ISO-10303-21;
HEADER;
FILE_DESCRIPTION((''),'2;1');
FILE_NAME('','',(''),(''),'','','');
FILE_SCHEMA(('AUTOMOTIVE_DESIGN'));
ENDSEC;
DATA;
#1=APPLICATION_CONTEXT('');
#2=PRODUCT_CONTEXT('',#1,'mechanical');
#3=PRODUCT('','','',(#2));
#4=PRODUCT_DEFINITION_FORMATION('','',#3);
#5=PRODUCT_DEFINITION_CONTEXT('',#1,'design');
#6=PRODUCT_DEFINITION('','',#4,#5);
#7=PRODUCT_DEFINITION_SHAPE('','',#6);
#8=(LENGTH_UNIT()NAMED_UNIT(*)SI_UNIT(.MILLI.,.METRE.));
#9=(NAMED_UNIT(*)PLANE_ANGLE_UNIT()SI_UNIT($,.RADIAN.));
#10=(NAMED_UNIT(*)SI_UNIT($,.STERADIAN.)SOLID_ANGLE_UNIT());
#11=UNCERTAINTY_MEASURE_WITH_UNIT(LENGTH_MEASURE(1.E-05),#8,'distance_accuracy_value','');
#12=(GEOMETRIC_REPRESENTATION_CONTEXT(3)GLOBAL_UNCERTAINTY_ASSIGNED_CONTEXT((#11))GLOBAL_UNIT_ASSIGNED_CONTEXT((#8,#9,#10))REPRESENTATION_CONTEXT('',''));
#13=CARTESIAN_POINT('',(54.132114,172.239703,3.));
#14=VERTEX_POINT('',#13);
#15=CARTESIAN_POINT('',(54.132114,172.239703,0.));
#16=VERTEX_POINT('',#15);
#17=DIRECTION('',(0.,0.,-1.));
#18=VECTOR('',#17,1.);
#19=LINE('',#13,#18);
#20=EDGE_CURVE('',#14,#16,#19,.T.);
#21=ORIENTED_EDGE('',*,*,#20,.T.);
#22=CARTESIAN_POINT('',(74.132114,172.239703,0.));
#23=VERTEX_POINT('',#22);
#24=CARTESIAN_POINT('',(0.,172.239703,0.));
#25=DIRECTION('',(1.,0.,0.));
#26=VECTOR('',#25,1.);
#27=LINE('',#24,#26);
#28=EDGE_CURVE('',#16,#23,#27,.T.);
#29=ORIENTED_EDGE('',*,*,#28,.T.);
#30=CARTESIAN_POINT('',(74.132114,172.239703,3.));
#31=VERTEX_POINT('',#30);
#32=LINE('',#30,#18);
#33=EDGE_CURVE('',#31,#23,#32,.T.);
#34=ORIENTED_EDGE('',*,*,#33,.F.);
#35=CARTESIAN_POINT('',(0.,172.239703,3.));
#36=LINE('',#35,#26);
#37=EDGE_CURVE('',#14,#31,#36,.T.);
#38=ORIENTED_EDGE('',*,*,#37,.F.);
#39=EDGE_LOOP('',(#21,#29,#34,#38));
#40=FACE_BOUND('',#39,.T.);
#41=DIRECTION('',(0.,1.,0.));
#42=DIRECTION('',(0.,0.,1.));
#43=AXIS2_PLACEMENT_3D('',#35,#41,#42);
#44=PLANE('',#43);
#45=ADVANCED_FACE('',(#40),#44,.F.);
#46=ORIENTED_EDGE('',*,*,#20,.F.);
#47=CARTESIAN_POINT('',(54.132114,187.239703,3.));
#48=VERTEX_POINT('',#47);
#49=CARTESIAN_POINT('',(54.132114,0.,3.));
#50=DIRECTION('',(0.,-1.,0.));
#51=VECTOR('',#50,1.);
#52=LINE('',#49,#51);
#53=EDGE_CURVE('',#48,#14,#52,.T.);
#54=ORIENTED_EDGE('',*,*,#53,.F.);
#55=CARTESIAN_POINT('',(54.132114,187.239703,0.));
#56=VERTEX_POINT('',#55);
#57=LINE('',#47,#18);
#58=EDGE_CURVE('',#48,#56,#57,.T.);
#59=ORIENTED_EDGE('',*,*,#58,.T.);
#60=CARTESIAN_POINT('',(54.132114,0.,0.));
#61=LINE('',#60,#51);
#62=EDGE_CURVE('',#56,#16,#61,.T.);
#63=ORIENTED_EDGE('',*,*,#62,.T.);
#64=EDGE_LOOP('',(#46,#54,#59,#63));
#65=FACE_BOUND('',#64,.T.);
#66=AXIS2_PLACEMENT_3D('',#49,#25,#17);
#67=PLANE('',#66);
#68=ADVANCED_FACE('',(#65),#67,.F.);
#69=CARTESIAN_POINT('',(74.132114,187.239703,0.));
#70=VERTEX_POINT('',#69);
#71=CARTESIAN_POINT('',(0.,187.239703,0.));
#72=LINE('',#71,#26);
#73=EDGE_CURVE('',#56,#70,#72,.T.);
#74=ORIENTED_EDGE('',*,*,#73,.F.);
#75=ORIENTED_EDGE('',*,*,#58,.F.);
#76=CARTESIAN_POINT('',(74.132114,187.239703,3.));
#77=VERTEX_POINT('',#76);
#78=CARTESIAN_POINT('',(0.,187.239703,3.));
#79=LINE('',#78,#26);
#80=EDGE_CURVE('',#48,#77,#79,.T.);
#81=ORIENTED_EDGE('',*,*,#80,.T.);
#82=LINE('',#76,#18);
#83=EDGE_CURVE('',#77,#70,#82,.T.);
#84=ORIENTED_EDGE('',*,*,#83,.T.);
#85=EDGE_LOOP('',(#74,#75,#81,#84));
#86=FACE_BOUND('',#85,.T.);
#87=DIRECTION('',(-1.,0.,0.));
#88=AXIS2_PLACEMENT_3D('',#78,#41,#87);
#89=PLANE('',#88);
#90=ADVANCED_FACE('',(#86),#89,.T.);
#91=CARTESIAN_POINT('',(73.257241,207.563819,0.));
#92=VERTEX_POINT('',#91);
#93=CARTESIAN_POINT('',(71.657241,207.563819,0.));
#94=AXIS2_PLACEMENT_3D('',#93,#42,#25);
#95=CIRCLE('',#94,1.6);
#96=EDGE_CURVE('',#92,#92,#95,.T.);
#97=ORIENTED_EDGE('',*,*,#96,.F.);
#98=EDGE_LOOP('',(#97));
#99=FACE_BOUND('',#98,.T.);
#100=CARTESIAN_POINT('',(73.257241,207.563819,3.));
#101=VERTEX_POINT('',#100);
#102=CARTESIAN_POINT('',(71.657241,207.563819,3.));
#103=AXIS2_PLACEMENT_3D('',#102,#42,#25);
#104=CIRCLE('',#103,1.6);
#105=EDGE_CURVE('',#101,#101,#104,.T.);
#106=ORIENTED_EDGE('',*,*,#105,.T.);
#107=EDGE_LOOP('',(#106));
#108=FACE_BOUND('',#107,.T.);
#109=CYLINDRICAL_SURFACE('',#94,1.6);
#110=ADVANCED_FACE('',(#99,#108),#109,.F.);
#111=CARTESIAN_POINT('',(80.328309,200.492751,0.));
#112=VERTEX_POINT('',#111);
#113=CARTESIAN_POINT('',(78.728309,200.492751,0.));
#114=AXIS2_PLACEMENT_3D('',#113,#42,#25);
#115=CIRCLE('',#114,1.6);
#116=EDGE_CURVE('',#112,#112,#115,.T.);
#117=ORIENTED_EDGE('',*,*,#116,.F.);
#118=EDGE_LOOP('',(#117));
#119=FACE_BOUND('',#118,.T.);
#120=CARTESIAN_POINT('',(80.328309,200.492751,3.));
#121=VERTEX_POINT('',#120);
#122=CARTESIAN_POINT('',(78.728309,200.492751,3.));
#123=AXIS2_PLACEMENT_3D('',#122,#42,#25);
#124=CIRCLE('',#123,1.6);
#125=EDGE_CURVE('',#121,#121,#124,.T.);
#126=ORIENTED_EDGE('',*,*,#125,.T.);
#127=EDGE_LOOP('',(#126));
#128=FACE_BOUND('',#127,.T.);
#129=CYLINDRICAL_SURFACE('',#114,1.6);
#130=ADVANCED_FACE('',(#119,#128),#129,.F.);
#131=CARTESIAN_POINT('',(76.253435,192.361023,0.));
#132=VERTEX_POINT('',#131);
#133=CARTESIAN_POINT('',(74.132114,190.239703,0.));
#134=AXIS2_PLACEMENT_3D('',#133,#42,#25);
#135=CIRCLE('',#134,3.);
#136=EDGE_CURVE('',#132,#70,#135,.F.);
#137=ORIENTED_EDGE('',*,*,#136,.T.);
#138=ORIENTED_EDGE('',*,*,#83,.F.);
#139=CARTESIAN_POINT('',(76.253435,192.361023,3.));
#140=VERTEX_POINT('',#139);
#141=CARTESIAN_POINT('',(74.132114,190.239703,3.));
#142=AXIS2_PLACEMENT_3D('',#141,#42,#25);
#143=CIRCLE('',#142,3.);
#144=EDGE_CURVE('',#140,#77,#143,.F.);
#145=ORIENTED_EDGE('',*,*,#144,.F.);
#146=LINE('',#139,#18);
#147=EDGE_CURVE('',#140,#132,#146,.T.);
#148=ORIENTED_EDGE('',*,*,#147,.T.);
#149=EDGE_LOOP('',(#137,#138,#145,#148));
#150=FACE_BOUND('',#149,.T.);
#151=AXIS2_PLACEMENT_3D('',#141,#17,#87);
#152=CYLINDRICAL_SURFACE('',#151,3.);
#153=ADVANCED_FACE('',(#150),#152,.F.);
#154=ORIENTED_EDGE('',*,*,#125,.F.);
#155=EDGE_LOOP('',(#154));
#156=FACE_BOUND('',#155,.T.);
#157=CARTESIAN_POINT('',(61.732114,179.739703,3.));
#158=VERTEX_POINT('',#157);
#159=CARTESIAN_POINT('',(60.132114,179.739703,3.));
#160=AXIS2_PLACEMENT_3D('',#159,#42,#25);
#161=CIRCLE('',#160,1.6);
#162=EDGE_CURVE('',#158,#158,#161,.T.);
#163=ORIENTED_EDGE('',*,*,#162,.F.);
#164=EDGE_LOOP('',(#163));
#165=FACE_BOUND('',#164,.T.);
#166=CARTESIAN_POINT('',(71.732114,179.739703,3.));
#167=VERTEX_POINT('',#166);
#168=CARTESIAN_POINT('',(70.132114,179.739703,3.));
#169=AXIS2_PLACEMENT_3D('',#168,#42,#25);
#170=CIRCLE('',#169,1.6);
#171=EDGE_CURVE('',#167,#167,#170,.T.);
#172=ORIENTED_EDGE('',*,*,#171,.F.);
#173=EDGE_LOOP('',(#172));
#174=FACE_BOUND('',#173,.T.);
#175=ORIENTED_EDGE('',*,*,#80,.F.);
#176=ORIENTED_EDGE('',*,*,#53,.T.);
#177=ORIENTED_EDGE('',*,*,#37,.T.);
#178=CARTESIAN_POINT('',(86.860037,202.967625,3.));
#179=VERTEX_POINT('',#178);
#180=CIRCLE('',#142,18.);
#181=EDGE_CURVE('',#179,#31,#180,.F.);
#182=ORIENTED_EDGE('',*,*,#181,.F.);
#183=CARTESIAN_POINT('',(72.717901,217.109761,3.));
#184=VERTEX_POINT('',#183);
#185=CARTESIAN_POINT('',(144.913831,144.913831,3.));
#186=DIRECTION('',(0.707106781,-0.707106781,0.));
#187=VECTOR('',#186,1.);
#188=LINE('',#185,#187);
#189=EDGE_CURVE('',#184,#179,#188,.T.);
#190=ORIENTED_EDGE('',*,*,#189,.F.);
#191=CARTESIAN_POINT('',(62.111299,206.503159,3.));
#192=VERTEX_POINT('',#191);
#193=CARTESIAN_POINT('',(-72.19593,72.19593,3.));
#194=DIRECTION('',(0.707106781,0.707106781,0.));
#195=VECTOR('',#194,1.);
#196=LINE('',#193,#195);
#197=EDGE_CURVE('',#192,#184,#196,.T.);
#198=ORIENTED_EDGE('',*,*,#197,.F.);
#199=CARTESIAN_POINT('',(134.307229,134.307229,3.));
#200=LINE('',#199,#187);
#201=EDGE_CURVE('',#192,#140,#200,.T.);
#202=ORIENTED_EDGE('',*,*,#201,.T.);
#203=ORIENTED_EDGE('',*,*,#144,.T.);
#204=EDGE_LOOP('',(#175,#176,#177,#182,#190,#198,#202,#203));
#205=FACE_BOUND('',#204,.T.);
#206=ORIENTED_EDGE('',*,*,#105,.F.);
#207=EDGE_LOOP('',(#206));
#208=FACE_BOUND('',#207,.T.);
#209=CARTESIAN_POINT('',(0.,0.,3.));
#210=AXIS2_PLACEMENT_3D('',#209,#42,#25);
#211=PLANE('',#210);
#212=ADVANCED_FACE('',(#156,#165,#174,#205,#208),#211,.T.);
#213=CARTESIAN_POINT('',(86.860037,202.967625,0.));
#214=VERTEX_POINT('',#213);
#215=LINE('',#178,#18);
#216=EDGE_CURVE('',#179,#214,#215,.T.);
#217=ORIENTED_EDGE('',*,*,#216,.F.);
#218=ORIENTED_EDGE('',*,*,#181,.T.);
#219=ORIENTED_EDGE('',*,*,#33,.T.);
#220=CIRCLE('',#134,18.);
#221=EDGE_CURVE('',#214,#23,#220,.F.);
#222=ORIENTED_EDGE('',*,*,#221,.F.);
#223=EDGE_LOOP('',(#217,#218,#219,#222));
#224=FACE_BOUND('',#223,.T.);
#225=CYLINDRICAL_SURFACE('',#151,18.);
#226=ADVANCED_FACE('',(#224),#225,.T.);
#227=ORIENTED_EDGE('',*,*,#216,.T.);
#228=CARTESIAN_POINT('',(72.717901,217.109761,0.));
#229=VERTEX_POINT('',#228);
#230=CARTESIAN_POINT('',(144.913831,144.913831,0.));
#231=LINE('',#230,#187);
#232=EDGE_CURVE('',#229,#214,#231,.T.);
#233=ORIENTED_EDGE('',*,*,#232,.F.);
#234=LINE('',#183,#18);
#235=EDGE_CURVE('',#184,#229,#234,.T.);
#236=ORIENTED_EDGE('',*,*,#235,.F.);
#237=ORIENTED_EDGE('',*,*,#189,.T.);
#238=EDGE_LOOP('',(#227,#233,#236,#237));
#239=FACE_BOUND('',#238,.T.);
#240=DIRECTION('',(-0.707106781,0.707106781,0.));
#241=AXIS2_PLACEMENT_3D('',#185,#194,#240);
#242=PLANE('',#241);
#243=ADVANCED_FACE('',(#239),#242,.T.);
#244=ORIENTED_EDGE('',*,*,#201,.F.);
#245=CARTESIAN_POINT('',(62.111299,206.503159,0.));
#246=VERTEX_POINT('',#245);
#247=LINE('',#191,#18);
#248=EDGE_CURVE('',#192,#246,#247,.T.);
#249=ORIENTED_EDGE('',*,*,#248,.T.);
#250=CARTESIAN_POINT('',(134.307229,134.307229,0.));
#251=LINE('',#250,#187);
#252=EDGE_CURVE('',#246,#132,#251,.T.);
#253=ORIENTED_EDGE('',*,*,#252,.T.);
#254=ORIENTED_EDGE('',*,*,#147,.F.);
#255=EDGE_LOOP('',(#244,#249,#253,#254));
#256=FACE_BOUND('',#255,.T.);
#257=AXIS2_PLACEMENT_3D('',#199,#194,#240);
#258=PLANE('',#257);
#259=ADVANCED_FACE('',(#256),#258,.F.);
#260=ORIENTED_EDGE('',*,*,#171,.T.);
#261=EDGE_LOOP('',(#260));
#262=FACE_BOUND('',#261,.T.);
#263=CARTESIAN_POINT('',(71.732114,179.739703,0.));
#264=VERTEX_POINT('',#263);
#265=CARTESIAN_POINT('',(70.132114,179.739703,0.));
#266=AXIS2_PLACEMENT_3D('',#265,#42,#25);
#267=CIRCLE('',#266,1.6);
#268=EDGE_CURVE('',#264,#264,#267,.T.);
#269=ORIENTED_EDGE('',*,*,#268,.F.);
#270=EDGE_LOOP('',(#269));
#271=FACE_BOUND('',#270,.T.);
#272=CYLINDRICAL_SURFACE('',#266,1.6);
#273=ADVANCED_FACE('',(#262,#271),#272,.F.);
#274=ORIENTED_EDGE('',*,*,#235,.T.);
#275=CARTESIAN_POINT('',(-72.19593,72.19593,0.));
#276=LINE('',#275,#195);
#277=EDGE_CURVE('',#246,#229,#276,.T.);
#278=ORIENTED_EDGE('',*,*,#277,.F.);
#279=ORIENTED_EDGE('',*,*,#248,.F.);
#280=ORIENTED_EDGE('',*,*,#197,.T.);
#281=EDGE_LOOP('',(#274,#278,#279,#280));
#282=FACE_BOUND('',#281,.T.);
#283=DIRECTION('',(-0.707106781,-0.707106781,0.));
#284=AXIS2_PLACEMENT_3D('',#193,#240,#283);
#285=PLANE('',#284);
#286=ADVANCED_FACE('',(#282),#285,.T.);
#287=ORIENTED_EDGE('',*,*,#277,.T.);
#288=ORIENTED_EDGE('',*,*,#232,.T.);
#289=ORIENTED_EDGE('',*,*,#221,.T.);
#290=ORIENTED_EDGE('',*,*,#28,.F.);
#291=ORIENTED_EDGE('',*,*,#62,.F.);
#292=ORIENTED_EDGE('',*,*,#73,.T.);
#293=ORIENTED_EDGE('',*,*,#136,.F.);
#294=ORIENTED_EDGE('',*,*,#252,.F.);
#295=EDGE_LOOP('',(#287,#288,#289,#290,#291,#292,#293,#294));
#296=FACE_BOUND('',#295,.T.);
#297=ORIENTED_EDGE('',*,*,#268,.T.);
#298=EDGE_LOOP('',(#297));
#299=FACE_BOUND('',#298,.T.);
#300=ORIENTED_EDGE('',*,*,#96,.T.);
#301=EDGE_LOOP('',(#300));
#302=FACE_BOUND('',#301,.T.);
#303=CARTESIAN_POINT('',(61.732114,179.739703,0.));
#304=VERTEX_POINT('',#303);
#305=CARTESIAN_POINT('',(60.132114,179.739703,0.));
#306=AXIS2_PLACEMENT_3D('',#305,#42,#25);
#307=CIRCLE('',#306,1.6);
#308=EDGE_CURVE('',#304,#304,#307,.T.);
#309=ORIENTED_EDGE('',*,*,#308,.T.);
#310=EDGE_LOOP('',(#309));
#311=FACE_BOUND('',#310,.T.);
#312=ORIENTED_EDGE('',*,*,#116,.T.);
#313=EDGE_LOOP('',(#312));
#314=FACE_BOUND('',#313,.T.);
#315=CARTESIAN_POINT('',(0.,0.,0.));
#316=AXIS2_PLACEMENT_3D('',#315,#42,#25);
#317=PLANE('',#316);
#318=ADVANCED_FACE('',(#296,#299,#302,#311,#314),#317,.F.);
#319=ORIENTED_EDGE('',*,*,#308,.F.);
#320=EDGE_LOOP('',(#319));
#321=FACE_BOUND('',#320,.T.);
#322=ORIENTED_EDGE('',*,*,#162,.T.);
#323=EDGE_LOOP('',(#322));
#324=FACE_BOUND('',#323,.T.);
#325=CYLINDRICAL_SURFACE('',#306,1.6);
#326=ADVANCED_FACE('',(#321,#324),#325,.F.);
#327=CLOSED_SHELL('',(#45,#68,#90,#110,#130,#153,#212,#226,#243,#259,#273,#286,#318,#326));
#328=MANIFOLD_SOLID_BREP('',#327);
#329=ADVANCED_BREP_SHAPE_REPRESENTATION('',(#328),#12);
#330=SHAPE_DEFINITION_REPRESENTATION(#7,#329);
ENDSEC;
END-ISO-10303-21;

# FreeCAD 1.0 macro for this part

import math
import FreeCAD as App
import Part
import Sketcher
Q = App.Units.Quantity

doc = App.newDocument("Part")
body = doc.addObject("PartDesign::Body", "Body")

sketch1 = body.newObject("Sketcher::SketchObject", "Sketch")
sketch1.AttachmentSupport = (doc.getObject("XY_Plane"), [""])
sketch1.MapMode = "FlatFace"
sketch1.addGeometry([
    Part.LineSegment(App.Vector(62.1, 206.5, 0), App.Vector(76.3, 192.4, 0)),
    Part.ArcOfCircle(Part.Circle(App.Vector(74.1, 190.2, 0), App.Vector(0, 0, 1), 3), math.radians(-90), math.radians(45)),
    Part.LineSegment(App.Vector(74.1, 187.2, 0), App.Vector(54.1, 187.2, 0)),
    Part.LineSegment(App.Vector(54.1, 187.2, 0), App.Vector(54.1, 172.2, 0)),
    Part.LineSegment(App.Vector(54.1, 172.2, 0), App.Vector(74.1, 172.2, 0)),
    Part.ArcOfCircle(Part.Circle(App.Vector(74.1, 190.2, 0), App.Vector(0, 0, 1), 18), math.radians(-90), math.radians(45)),
    Part.LineSegment(App.Vector(86.9, 203, 0), App.Vector(72.7, 217.1, 0)),
    Part.LineSegment(App.Vector(72.7, 217.1, 0), App.Vector(62.1, 206.5, 0)),
], False)
sketch1.addConstraint([
    Sketcher.Constraint("Tangent", 0, 2, 1, 2),
    Sketcher.Constraint("Tangent", 1, 1, 2, 1),
    Sketcher.Constraint("Coincident", 2, 2, 3, 1),
    Sketcher.Constraint("Coincident", 3, 2, 4, 1),
    Sketcher.Constraint("Tangent", 4, 2, 5, 1),
    Sketcher.Constraint("Tangent", 5, 2, 6, 1),
    Sketcher.Constraint("Coincident", 6, 2, 7, 1),
    Sketcher.Constraint("Coincident", 7, 2, 0, 1),
    Sketcher.Constraint("Horizontal", 2),
    Sketcher.Constraint("Vertical", 3),
    Sketcher.Constraint("Horizontal", 4),
    Sketcher.Constraint("Coincident", 5, 3, 1, 3),
    Sketcher.Constraint("Parallel", 0, 6),
    Sketcher.Constraint("Perpendicular", 6, 7),
    Sketcher.Constraint("Radius", 1, 3.0),
    Sketcher.Constraint("Radius", 5, 18.0),
    Sketcher.Constraint("DistanceX", 2, 2, 2, 1, 20.0),
    Sketcher.Constraint("Angle", 0, Q("-45 deg")),
    Sketcher.Constraint("Distance", 0, 20.0),
    Sketcher.Constraint("DistanceX", -1, 1, 6, 2, 72.717901),
    Sketcher.Constraint("DistanceY", -1, 1, 6, 2, 217.109761),
])
pad1 = body.newObject("PartDesign::Pad", "Pad")
pad1.Profile = sketch1
pad1.Length = 3

sketch2 = body.newObject("Sketcher::SketchObject", "Sketch001")
sketch2.AttachmentSupport = (doc.getObject("XY_Plane"), [""])
sketch2.MapMode = "FlatFace"
sketch2.AttachmentOffset = App.Placement(App.Vector(0, 0, 3), App.Rotation())
sketch2.addGeometry([
    Part.Circle(App.Vector(71.7, 207.6, 0), App.Vector(0, 0, 1), 1.6),
    Part.Circle(App.Vector(78.7, 200.5, 0), App.Vector(0, 0, 1), 1.6),
    Part.Circle(App.Vector(60.1, 179.7, 0), App.Vector(0, 0, 1), 1.6),
    Part.Circle(App.Vector(70.1, 179.7, 0), App.Vector(0, 0, 1), 1.6),
], False)
sketch2.addConstraint([
    Sketcher.Constraint("Equal", 0, 1),
    Sketcher.Constraint("Equal", 1, 2),
    Sketcher.Constraint("Equal", 2, 3),
    Sketcher.Constraint("Horizontal", 2, 3, 3, 3),
    Sketcher.Constraint("Diameter", 0, 3.2),
    Sketcher.Constraint("DistanceX", 2, 3, 3, 3, 10.0),
    Sketcher.Constraint("DistanceX", -1, 1, 0, 3, 71.657241),
    Sketcher.Constraint("DistanceY", -1, 1, 0, 3, 207.563819),
    Sketcher.Constraint("DistanceX", -1, 1, 1, 3, 78.728309),
    Sketcher.Constraint("DistanceY", -1, 1, 1, 3, 200.492751),
    Sketcher.Constraint("DistanceY", 2, 3, 1, 3, 20.753048),
    Sketcher.Constraint("DistanceX", -1, 1, 2, 3, 60.132114),
])
pocket1 = body.newObject("PartDesign::Pocket", "Pocket")
pocket1.Profile = sketch2
pocket1.Length = 3

doc.recompute()
